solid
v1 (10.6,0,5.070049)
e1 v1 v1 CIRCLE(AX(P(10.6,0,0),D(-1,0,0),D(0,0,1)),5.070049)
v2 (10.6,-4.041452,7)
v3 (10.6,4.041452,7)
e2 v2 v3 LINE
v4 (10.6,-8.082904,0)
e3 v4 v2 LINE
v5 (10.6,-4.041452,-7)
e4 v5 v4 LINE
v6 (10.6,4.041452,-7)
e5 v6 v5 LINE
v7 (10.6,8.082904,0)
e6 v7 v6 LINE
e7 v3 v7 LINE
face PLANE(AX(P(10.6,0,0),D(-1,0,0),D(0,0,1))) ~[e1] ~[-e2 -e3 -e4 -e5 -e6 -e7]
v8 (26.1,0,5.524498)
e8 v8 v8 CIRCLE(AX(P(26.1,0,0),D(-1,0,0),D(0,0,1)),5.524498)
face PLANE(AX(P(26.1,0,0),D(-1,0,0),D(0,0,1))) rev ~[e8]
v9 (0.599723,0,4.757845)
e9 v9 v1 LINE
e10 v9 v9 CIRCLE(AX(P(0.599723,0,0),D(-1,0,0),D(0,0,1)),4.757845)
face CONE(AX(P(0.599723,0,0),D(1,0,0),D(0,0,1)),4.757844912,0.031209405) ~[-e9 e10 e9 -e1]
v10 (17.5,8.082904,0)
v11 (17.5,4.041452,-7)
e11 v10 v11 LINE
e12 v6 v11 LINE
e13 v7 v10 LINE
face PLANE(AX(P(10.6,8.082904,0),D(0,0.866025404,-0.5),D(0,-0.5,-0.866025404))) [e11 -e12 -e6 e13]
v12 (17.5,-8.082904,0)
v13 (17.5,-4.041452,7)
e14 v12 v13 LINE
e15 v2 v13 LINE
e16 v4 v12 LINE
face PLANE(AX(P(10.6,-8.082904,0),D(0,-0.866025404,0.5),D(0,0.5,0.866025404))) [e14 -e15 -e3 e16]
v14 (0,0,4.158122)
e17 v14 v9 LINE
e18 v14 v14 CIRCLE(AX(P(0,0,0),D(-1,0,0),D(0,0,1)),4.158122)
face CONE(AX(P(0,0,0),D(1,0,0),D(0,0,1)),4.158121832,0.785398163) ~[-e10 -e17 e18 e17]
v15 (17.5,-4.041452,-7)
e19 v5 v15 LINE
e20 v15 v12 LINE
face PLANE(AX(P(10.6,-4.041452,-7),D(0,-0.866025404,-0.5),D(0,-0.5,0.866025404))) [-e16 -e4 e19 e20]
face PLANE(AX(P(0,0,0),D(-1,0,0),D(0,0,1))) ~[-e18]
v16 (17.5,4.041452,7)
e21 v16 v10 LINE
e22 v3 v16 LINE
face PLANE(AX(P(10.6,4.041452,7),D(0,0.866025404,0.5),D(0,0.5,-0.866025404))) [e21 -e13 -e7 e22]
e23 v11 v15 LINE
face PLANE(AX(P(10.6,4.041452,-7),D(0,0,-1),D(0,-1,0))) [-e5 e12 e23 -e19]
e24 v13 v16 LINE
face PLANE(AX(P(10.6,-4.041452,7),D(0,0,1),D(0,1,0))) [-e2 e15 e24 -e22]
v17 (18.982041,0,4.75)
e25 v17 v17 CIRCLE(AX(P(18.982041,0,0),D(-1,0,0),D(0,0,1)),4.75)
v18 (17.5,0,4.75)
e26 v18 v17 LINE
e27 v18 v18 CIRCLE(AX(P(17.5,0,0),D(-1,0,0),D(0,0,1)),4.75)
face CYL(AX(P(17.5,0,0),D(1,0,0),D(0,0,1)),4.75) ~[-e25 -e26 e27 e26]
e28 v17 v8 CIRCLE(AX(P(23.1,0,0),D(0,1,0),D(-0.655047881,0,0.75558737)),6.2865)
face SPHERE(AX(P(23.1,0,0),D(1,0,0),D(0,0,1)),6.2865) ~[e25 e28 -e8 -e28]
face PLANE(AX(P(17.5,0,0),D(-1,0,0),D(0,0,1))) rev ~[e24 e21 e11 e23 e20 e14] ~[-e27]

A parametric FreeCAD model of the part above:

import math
import FreeCAD as App
import Part
import Sketcher
from FreeCAD import Vector
Q = App.Units.Quantity


def add_polygon(sketch, points):
    """Adds a closed chain of lines whose ends are joined by coincident constraints."""
    first, n = sketch.GeometryCount, len(points)
    for a, b in zip(points, points[1:] + points[:1]):
        sketch.addGeometry(Part.LineSegment(App.Vector(*a, 0), App.Vector(*b, 0)), False)
    for i in range(n):
        sketch.addConstraint(Sketcher.Constraint("Coincident", first + i, 2, first + (i + 1) % n, 1))

doc = App.newDocument("Part")
body = doc.addObject("PartDesign::Body", "Body")

# Sketch on XY plane
sketch1 = body.newObject("Sketcher::SketchObject", "Sketch")
sketch1.AttachmentSupport = (doc.getObject("XY_Plane"), [""])
sketch1.MapMode = "FlatFace"
sketch1.addGeometry([
    Part.LineSegment(Vector(0, 4.158122, 0), Vector(0, 0, 0)),  # 0
    Part.LineSegment(Vector(0, 0, 0), Vector(26.1, 0, 0)),  # 1
    Part.LineSegment(Vector(26.1, 0, 0), Vector(26.1, 5.524498, 0)),  # 2
    Part.ArcOfCircle(Part.Circle(Vector(23.1, 0, 0), Vector(0, 0, 1), 6.2865), math.radians(61.496459), math.radians(130.923281)),  # 3
    Part.LineSegment(Vector(18.982041, 4.75, 0), Vector(17.5, 4.75, 0)),  # 4
    Part.LineSegment(Vector(17.5, 4.75, 0), Vector(17.5, 12, 0)),  # 5
    Part.LineSegment(Vector(17.5, 12, 0), Vector(10.6, 12, 0)),  # 6
    Part.LineSegment(Vector(10.6, 12, 0), Vector(10.6, 5.070049, 0)),  # 7
    Part.LineSegment(Vector(10.6, 5.070049, 0), Vector(0.599723, 4.757845, 0)),  # 8
    Part.LineSegment(Vector(0.599723, 4.757845, 0), Vector(0, 4.158122, 0)),  # 9
], False)
sketch1.addConstraint([
    Sketcher.Constraint("Coincident", 0, 2, 1, 1),
    Sketcher.Constraint("Coincident", 1, 2, 2, 1),
    Sketcher.Constraint("Coincident", 2, 2, 3, 1),
    Sketcher.Constraint("Coincident", 3, 2, 4, 1),
    Sketcher.Constraint("Coincident", 4, 2, 5, 1),
    Sketcher.Constraint("Coincident", 5, 2, 6, 1),
    Sketcher.Constraint("Coincident", 6, 2, 7, 1),
    Sketcher.Constraint("Coincident", 7, 2, 8, 1),
    Sketcher.Constraint("Coincident", 8, 2, 9, 1),
    Sketcher.Constraint("Coincident", 9, 2, 0, 1),
    Sketcher.Constraint("Vertical", 0),
    Sketcher.Constraint("Horizontal", 1),
    Sketcher.Constraint("Vertical", 2),
    Sketcher.Constraint("Horizontal", 4),
    Sketcher.Constraint("Vertical", 5),
    Sketcher.Constraint("Horizontal", 6),
    Sketcher.Constraint("Vertical", 7),
    Sketcher.Constraint("Coincident", 0, 2, -1, 1),
    Sketcher.Constraint("PointOnObject", 3, 3, -1),
    Sketcher.Constraint("Angle", 9, Q("-135 deg")),
    Sketcher.Constraint("DistanceX", 1, 1, 1, 2, 26.1),
    Sketcher.Constraint("DistanceX", 6, 2, 6, 1, 6.9),
    Sketcher.Constraint("DistanceY", -1, 1, 5, 2, 12.0),
    Sketcher.Constraint("DistanceX", 3, 3, 1, 2, 3.0),
    Sketcher.Constraint("DistanceY", 5, 1, 5, 2, 7.25),
    Sketcher.Constraint("DistanceX", -1, 1, 4, 2, 17.5),
    Sketcher.Constraint("Radius", 3, 6.2865),
    Sketcher.Constraint("DistanceY", 0, 2, 0, 1, 4.158122),
    Sketcher.Constraint("DistanceY", 7, 2, 7, 1, 6.929951),
    Sketcher.Constraint("Distance", 8, 10.005149),
])
revolution = body.newObject("PartDesign::Revolution", "Revolution")
revolution.Profile = sketch1
revolution.ReferenceAxis = (sketch1, ["H_Axis"])
revolution.Angle = 360

# Sketch on YZ plane
sketch2 = body.newObject("Sketcher::SketchObject", "Sketch001")
sketch2.AttachmentSupport = (doc.getObject("YZ_Plane"), [""])
sketch2.MapMode = "FlatFace"
sketch2.AttachmentOffset = App.Placement(Vector(0, 0, 10.6), App.Rotation())
sketch2.addGeometry(Part.Circle(Vector(0, 0, 0), Vector(0, 0, 1), 14), False)  # 0
add_polygon(sketch2, [(-4.041452, 7), (-8.082904, 0), (-4.041452, -7), (4.041452, -7), (8.082904, 0), (4.041452, 7)])  # lines 1-6
sketch2.addConstraint([
    Sketcher.Constraint("Horizontal", 3),
    Sketcher.Constraint("Horizontal", 6),
    Sketcher.Constraint("Coincident", 0, 3, -1, 1),
    Sketcher.Constraint("Symmetric", 1, 2, 4, 2, -1, 1),
    Sketcher.Constraint("Symmetric", 2, 2, 5, 2, -1, 1),
    Sketcher.Constraint("PointOnObject", 1, 2, -1),
    Sketcher.Constraint("Parallel", 1, 4),
    Sketcher.Constraint("Vertical", 3, 2, 5, 2),
    Sketcher.Constraint("Diameter", 0, 28.0),
    Sketcher.Constraint("Angle", 1, Q("-120 deg")),
    Sketcher.Constraint("DistanceY", 2, 2, -1, 1, 7.0),
    Sketcher.Constraint("DistanceX", 3, 1, 3, 2, 8.082904),
])
pocket1 = body.newObject("PartDesign::Pocket", "Pocket")
pocket1.Profile = sketch2
pocket1.Length = 6.9
pocket1.Reversed = True

doc.recompute()
